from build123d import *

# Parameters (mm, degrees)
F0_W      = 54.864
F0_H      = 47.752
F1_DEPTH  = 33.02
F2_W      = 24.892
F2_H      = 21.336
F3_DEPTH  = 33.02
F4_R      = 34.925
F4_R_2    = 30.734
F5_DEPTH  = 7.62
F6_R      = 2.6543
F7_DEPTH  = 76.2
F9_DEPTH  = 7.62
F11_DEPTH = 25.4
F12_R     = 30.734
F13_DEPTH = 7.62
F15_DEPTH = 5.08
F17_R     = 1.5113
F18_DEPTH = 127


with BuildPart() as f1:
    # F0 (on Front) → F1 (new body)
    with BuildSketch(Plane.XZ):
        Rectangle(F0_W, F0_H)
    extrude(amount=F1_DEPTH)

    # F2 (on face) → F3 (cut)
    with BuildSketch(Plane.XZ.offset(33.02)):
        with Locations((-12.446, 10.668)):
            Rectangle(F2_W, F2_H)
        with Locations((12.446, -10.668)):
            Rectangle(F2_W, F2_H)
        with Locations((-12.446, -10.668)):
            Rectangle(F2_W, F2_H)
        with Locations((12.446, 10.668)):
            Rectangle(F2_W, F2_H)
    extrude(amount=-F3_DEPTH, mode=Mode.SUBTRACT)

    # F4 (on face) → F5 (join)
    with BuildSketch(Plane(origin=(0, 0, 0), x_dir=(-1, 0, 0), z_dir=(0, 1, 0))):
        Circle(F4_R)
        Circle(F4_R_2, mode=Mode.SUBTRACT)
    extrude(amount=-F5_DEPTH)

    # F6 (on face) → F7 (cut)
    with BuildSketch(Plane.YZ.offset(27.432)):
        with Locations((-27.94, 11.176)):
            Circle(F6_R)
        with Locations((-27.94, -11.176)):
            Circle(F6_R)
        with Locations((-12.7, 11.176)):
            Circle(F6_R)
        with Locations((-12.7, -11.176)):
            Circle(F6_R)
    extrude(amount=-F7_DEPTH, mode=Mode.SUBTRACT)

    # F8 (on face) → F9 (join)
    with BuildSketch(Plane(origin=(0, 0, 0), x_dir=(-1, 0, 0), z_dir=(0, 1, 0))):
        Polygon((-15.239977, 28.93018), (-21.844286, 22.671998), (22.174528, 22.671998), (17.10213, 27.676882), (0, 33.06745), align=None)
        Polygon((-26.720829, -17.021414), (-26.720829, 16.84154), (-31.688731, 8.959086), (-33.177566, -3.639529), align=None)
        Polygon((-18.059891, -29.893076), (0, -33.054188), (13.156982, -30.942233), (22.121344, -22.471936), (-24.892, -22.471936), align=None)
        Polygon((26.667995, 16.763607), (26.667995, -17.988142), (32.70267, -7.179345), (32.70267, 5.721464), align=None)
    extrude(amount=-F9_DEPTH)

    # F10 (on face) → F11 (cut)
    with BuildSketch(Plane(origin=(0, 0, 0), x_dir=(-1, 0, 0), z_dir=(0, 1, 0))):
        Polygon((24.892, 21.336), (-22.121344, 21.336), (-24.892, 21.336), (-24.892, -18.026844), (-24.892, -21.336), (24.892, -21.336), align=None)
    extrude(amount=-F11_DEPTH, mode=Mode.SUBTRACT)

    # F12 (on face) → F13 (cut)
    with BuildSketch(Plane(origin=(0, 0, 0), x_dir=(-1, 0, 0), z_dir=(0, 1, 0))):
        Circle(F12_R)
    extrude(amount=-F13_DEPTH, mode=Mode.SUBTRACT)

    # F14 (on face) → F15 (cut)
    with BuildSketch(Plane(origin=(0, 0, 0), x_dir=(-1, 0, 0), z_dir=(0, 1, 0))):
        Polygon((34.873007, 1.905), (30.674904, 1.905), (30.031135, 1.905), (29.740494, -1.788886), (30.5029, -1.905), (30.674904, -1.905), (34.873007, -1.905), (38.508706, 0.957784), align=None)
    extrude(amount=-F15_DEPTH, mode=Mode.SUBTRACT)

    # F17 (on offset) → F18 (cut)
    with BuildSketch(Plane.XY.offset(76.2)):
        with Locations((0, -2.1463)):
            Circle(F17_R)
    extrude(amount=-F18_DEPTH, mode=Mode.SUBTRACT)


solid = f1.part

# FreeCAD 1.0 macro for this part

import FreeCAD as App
import Part
import Sketcher
Q = App.Units.Quantity

doc = App.newDocument("Part")
body = doc.addObject("PartDesign::Body", "Body")

# Sketch on XZ plane
sketch1 = body.newObject("Sketcher::SketchObject", "Sketch")
sketch1.AttachmentSupport = (doc.getObject("XZ_Plane"), [""])
sketch1.MapMode = "FlatFace"
sketch1.addGeometry(Part.LineSegment(App.Vector(-27.432, 23.876, 0), App.Vector(-27.432, -23.876, 0)), False)
sketch1.addGeometry(Part.LineSegment(App.Vector(-27.432, -23.876, 0), App.Vector(27.432, -23.876, 0)), False)
sketch1.addGeometry(Part.LineSegment(App.Vector(27.432, -23.876, 0), App.Vector(27.432, 23.876, 0)), False)
sketch1.addGeometry(Part.LineSegment(App.Vector(27.432, 23.876, 0), App.Vector(-27.432, 23.876, 0)), False)
sketch1.addConstraint(Sketcher.Constraint("Coincident", 0, 2, 1, 1))
sketch1.addConstraint(Sketcher.Constraint("Coincident", 1, 2, 2, 1))
sketch1.addConstraint(Sketcher.Constraint("Coincident", 2, 2, 3, 1))
sketch1.addConstraint(Sketcher.Constraint("Coincident", 3, 2, 0, 1))
sketch1.addConstraint(Sketcher.Constraint("Vertical", 0))
sketch1.addConstraint(Sketcher.Constraint("Horizontal", 1))
sketch1.addConstraint(Sketcher.Constraint("Vertical", 2))
sketch1.addConstraint(Sketcher.Constraint("Horizontal", 3))
sketch1.addConstraint(Sketcher.Constraint("Symmetric", 0, 2, 2, 2, -1, 1))
sketch1.addConstraint(Sketcher.Constraint("DistanceX", 1, 1, 1, 2, Q("2.16 in")))
sketch1.addConstraint(Sketcher.Constraint("DistanceY", 0, 2, 0, 1, Q("1.88 in")))
pad1 = body.newObject("PartDesign::Pad", "Pad")
pad1.Profile = sketch1
pad1.Length = Q("1.3 in")

# Sketch on XZ plane
sketch2 = body.newObject("Sketcher::SketchObject", "Sketch001")
sketch2.AttachmentSupport = (doc.getObject("XZ_Plane"), [""])
sketch2.MapMode = "FlatFace"
sketch2.AttachmentOffset = App.Placement(App.Vector(0, 0, 1.3 * 25.4), App.Rotation())
sketch2.addGeometry(Part.LineSegment(App.Vector(-24.892, 21.336, 0), App.Vector(-24.892, -21.336, 0)), False)
sketch2.addGeometry(Part.LineSegment(App.Vector(-24.892, -21.336, 0), App.Vector(24.892, -21.336, 0)), False)
sketch2.addGeometry(Part.LineSegment(App.Vector(24.892, -21.336, 0), App.Vector(24.892, 21.336, 0)), False)
sketch2.addGeometry(Part.LineSegment(App.Vector(24.892, 21.336, 0), App.Vector(-24.892, 21.336, 0)), False)
sketch2.addConstraint(Sketcher.Constraint("Coincident", 0, 2, 1, 1))
sketch2.addConstraint(Sketcher.Constraint("Coincident", 1, 2, 2, 1))
sketch2.addConstraint(Sketcher.Constraint("Coincident", 2, 2, 3, 1))
sketch2.addConstraint(Sketcher.Constraint("Coincident", 3, 2, 0, 1))
sketch2.addConstraint(Sketcher.Constraint("Vertical", 0))
sketch2.addConstraint(Sketcher.Constraint("Horizontal", 1))
sketch2.addConstraint(Sketcher.Constraint("Vertical", 2))
sketch2.addConstraint(Sketcher.Constraint("Horizontal", 3))
sketch2.addConstraint(Sketcher.Constraint("Symmetric", 0, 2, 2, 2, -1, 1))
sketch2.addConstraint(Sketcher.Constraint("DistanceX", 1, 1, 1, 2, Q("1.96 in")))
sketch2.addConstraint(Sketcher.Constraint("DistanceY", 0, 2, 0, 1, Q("1.68 in")))
pocket1 = body.newObject("PartDesign::Pocket", "Pocket")
pocket1.Profile = sketch2
pocket1.Length = Q("1.3 in")

# Sketch on XZ plane
sketch3 = body.newObject("Sketcher::SketchObject", "Sketch002")
sketch3.AttachmentSupport = (doc.getObject("XZ_Plane"), [""])
sketch3.MapMode = "FlatFace"
sketch3.addGeometry(Part.Circle(App.Vector(0, 0, 0), App.Vector(0, 0, 1), 34.925), False)
sketch3.addGeometry(Part.Circle(App.Vector(0, 0, 0), App.Vector(0, 0, 1), 30.734), False)
sketch3.addConstraint(Sketcher.Constraint("Coincident", 0, 3, -1, 1))
sketch3.addConstraint(Sketcher.Constraint("Coincident", 1, 3, -1, 1))
sketch3.addConstraint(Sketcher.Constraint("Diameter", 0, Q("2.75 in")))
sketch3.addConstraint(Sketcher.Constraint("Diameter", 1, Q("2.42 in")))
pad2 = body.newObject("PartDesign::Pad", "Pad001")
pad2.Profile = sketch3
pad2.Length = Q("0.3 in")

# Sketch on YZ plane
sketch4 = body.newObject("Sketcher::SketchObject", "Sketch003")
sketch4.AttachmentSupport = (doc.getObject("YZ_Plane"), [""])
sketch4.MapMode = "FlatFace"
sketch4.AttachmentOffset = App.Placement(App.Vector(0, 0, 1.08 * 25.4), App.Rotation())
sketch4.addGeometry(Part.Circle(App.Vector(-27.94, 11.176, 0), App.Vector(0, 0, 1), 2.6543), False)
sketch4.addGeometry(Part.Circle(App.Vector(-27.94, -11.176, 0), App.Vector(0, 0, 1), 2.6543), False)
sketch4.addGeometry(Part.Circle(App.Vector(-12.7, 11.176, 0), App.Vector(0, 0, 1), 2.6543), False)
sketch4.addGeometry(Part.Circle(App.Vector(-12.7, -11.176, 0), App.Vector(0, 0, 1), 2.6543), False)
sketch4.addConstraint(Sketcher.Constraint("Equal", 0, 1))
sketch4.addConstraint(Sketcher.Constraint("Equal", 1, 2))
sketch4.addConstraint(Sketcher.Constraint("Equal", 2, 3))
sketch4.addConstraint(Sketcher.Constraint("Symmetric", 0, 3, 1, 3, -1))
sketch4.addConstraint(Sketcher.Constraint("Symmetric", 2, 3, 3, 3, -1))
sketch4.addConstraint(Sketcher.Constraint("Horizontal", 0, 3, 2, 3))
sketch4.addConstraint(Sketcher.Constraint("Diameter", 0, Q("0.209 in")))
sketch4.addConstraint(Sketcher.Constraint("DistanceX", 0, 3, -1, 1, Q("1.1 in")))
sketch4.addConstraint(Sketcher.Constraint("DistanceX", 2, 3, -1, 1, Q("0.5 in")))
sketch4.addConstraint(Sketcher.Constraint("DistanceY", -1, 1, 0, 3, Q("0.44 in")))
pocket2 = body.newObject("PartDesign::Pocket", "Pocket001")
pocket2.Profile = sketch4
pocket2.Length = Q("3 in")

# Sketch on XZ plane
sketch5 = body.newObject("Sketcher::SketchObject", "Sketch004")
sketch5.AttachmentSupport = (doc.getObject("XZ_Plane"), [""])
sketch5.MapMode = "FlatFace"
sketch5.addGeometry(Part.LineSegment(App.Vector(15.239977, 28.93018, 0), App.Vector(21.844286, 22.671998, 0)), False)
sketch5.addGeometry(Part.LineSegment(App.Vector(21.844286, 22.671998, 0), App.Vector(-22.174528, 22.671998, 0)), False)
sketch5.addGeometry(Part.LineSegment(App.Vector(-22.174528, 22.671998, 0), App.Vector(-17.10213, 27.676882, 0)), False)
sketch5.addGeometry(Part.LineSegment(App.Vector(-17.10213, 27.676882, 0), App.Vector(0, 33.06745, 0)), False)
sketch5.addGeometry(Part.LineSegment(App.Vector(0, 33.06745, 0), App.Vector(15.239977, 28.93018, 0)), False)
sketch5.addGeometry(Part.LineSegment(App.Vector(26.720829, -17.021414, 0), App.Vector(26.720829, 16.84154, 0)), False)
sketch5.addGeometry(Part.LineSegment(App.Vector(26.720829, 16.84154, 0), App.Vector(31.688731, 8.959086, 0)), False)
sketch5.addGeometry(Part.LineSegment(App.Vector(31.688731, 8.959086, 0), App.Vector(33.177566, -3.639529, 0)), False)
sketch5.addGeometry(Part.LineSegment(App.Vector(33.177566, -3.639529, 0), App.Vector(26.720829, -17.021414, 0)), False)
sketch5.addGeometry(Part.LineSegment(App.Vector(18.059891, -29.893076, 0), App.Vector(0, -33.054188, 0)), False)
sketch5.addGeometry(Part.LineSegment(App.Vector(0, -33.054188, 0), App.Vector(-13.156982, -30.942233, 0)), False)
sketch5.addGeometry(Part.LineSegment(App.Vector(-13.156982, -30.942233, 0), App.Vector(-22.121344, -22.471936, 0)), False)
sketch5.addGeometry(Part.LineSegment(App.Vector(-22.121344, -22.471936, 0), App.Vector(24.892, -22.471936, 0)), False)
sketch5.addGeometry(Part.LineSegment(App.Vector(24.892, -22.471936, 0), App.Vector(18.059891, -29.893076, 0)), False)
sketch5.addGeometry(Part.LineSegment(App.Vector(-26.667995, 16.763607, 0), App.Vector(-26.667995, -17.988142, 0)), False)
sketch5.addGeometry(Part.LineSegment(App.Vector(-26.667995, -17.988142, 0), App.Vector(-32.70267, -7.179345, 0)), False)
sketch5.addGeometry(Part.LineSegment(App.Vector(-32.70267, -7.179345, 0), App.Vector(-32.70267, 5.721464, 0)), False)
sketch5.addGeometry(Part.LineSegment(App.Vector(-32.70267, 5.721464, 0), App.Vector(-26.667995, 16.763607, 0)), False)
sketch5.addConstraint(Sketcher.Constraint("Coincident", 0, 2, 1, 1))
sketch5.addConstraint(Sketcher.Constraint("Coincident", 1, 2, 2, 1))
sketch5.addConstraint(Sketcher.Constraint("Coincident", 2, 2, 3, 1))
sketch5.addConstraint(Sketcher.Constraint("Coincident", 3, 2, 4, 1))
sketch5.addConstraint(Sketcher.Constraint("Coincident", 4, 2, 0, 1))
sketch5.addConstraint(Sketcher.Constraint("Coincident", 5, 2, 6, 1))
sketch5.addConstraint(Sketcher.Constraint("Coincident", 6, 2, 7, 1))
sketch5.addConstraint(Sketcher.Constraint("Coincident", 7, 2, 8, 1))
sketch5.addConstraint(Sketcher.Constraint("Coincident", 8, 2, 5, 1))
sketch5.addConstraint(Sketcher.Constraint("Coincident", 9, 2, 10, 1))
sketch5.addConstraint(Sketcher.Constraint("Coincident", 10, 2, 11, 1))
sketch5.addConstraint(Sketcher.Constraint("Coincident", 11, 2, 12, 1))
sketch5.addConstraint(Sketcher.Constraint("Coincident", 12, 2, 13, 1))
sketch5.addConstraint(Sketcher.Constraint("Coincident", 13, 2, 9, 1))
sketch5.addConstraint(Sketcher.Constraint("Coincident", 14, 2, 15, 1))
sketch5.addConstraint(Sketcher.Constraint("Coincident", 15, 2, 16, 1))
sketch5.addConstraint(Sketcher.Constraint("Coincident", 16, 2, 17, 1))
sketch5.addConstraint(Sketcher.Constraint("Coincident", 17, 2, 14, 1))
sketch5.addConstraint(Sketcher.Constraint("Horizontal", 1))
sketch5.addConstraint(Sketcher.Constraint("Vertical", 5))
sketch5.addConstraint(Sketcher.Constraint("Horizontal", 12))
sketch5.addConstraint(Sketcher.Constraint("Vertical", 14))
sketch5.addConstraint(Sketcher.Constraint("Vertical", 16))
sketch5.addConstraint(Sketcher.Constraint("PointOnObject", 3, 2, -2))
sketch5.addConstraint(Sketcher.Constraint("PointOnObject", 9, 2, -2))
sketch5.addConstraint(Sketcher.Constraint("DistanceX", -1, 1, 12, 2, Q("0.98 in")))
sketch5.addConstraint(Sketcher.Constraint("DistanceX", 2, 2, 6, 2, Q("1.9209 in")))
sketch5.addConstraint(Sketcher.Constraint("DistanceY", 14, 2, 14, 1, 34.751749))
sketch5.addConstraint(Sketcher.Constraint("DistanceY", 16, 1, 16, 2, 12.900809))
sketch5.addConstraint(Sketcher.Constraint("DistanceY", 2, 2, 4, 2, 1.253298))
sketch5.addConstraint(Sketcher.Constraint("DistanceY", 8, 2, 6, 2, 25.9805))
sketch5.addConstraint(Sketcher.Constraint("DistanceY", 11, 2, 16, 2, 28.1934))
sketch5.addConstraint(Sketcher.Constraint("Distance", 7, 12.686281))
sketch5.addConstraint(Sketcher.Constraint("Distance", 8, 14.858139))
sketch5.addConstraint(Sketcher.Constraint("Distance", 10, 13.325409))
sketch5.addConstraint(Sketcher.Constraint("Distance", 13, 10.087172))
sketch5.addConstraint(Sketcher.Constraint("Distance", 17, 12.58357))
sketch5.addConstraint(Sketcher.Constraint("DistanceX", 1, 2, 1, 1, 44.018814))
sketch5.addConstraint(Sketcher.Constraint("DistanceX", 12, 1, 12, 2, 47.013344))
sketch5.addConstraint(Sketcher.Constraint("DistanceY", 5, 1, 5, 2, 33.862954))
sketch5.addConstraint(Sketcher.Constraint("DistanceX", 2, 2, -1, 1, 17.10213))
sketch5.addConstraint(Sketcher.Constraint("DistanceY", -1, 1, 2, 2, 27.676882))
sketch5.addConstraint(Sketcher.Constraint("DistanceY", -1, 1, 3, 2, 33.06745))
sketch5.addConstraint(Sketcher.Constraint("DistanceX", -1, 1, 5, 2, 26.720829))
sketch5.addConstraint(Sketcher.Constraint("DistanceY", -1, 1, 5, 2, 16.84154))
sketch5.addConstraint(Sketcher.Constraint("DistanceY", 9, 2, -1, 1, 33.054188))
sketch5.addConstraint(Sketcher.Constraint("DistanceX", 10, 2, -1, 1, 13.156982))
sketch5.addConstraint(Sketcher.Constraint("DistanceX", -1, 1, 13, 2, 18.059891))
sketch5.addConstraint(Sketcher.Constraint("DistanceY", 14, 2, -1, 1, 17.988142))
sketch5.addConstraint(Sketcher.Constraint("DistanceX", 15, 2, -1, 1, 32.70267))
sketch5.addConstraint(Sketcher.Constraint("DistanceX", 4, 2, 0, 2, 6.604309))
sketch5.addConstraint(Sketcher.Constraint("DistanceX", 4, 2, 5, 2, 11.480852))
sketch5.addConstraint(Sketcher.Constraint("DistanceY", 6, 2, 0, 2, 13.712912))
sketch5.addConstraint(Sketcher.Constraint("DistanceY", 11, 2, 8, 2, 5.450522))
pad3 = body.newObject("PartDesign::Pad", "Pad002")
pad3.Profile = sketch5
pad3.Length = Q("0.3 in")

# Sketch on XZ plane
sketch6 = body.newObject("Sketcher::SketchObject", "Sketch005")
sketch6.AttachmentSupport = (doc.getObject("XZ_Plane"), [""])
sketch6.MapMode = "FlatFace"
sketch6.addGeometry(Part.LineSegment(App.Vector(-24.892, 21.336, 0), App.Vector(24.892, 21.336, 0)), False)
sketch6.addGeometry(Part.LineSegment(App.Vector(24.892, 21.336, 0), App.Vector(24.892, -21.336, 0)), False)
sketch6.addGeometry(Part.LineSegment(App.Vector(24.892, -21.336, 0), App.Vector(-24.892, -21.336, 0)), False)
sketch6.addGeometry(Part.LineSegment(App.Vector(-24.892, -21.336, 0), App.Vector(-24.892, 21.336, 0)), False)
sketch6.addConstraint(Sketcher.Constraint("Coincident", 0, 2, 1, 1))
sketch6.addConstraint(Sketcher.Constraint("Coincident", 1, 2, 2, 1))
sketch6.addConstraint(Sketcher.Constraint("Coincident", 2, 2, 3, 1))
sketch6.addConstraint(Sketcher.Constraint("Coincident", 3, 2, 0, 1))
sketch6.addConstraint(Sketcher.Constraint("Horizontal", 0))
sketch6.addConstraint(Sketcher.Constraint("Vertical", 1))
sketch6.addConstraint(Sketcher.Constraint("Horizontal", 2))
sketch6.addConstraint(Sketcher.Constraint("Vertical", 3))
sketch6.addConstraint(Sketcher.Constraint("Symmetric", 0, 2, 2, 2, -1, 1))
sketch6.addConstraint(Sketcher.Constraint("DistanceX", 0, 1, 0, 2, Q("1.96 in")))
sketch6.addConstraint(Sketcher.Constraint("DistanceY", 1, 2, 1, 1, Q("1.68 in")))
pocket3 = body.newObject("PartDesign::Pocket", "Pocket002")
pocket3.Profile = sketch6
pocket3.Length = Q("1 in")
pocket3.Reversed = True

# Sketch on XZ plane
sketch7 = body.newObject("Sketcher::SketchObject", "Sketch006")
sketch7.AttachmentSupport = (doc.getObject("XZ_Plane"), [""])
sketch7.MapMode = "FlatFace"
sketch7.addGeometry(Part.Circle(App.Vector(0, 0, 0), App.Vector(0, 0, 1), 30.734), False)
sketch7.addConstraint(Sketcher.Constraint("Coincident", 0, 3, -1, 1))
sketch7.addConstraint(Sketcher.Constraint("Diameter", 0, Q("2.42 in")))
pocket4 = body.newObject("PartDesign::Pocket", "Pocket003")
pocket4.Profile = sketch7
pocket4.Length = Q("0.3 in")
pocket4.Reversed = True

# Sketch on XZ plane
sketch8 = body.newObject("Sketcher::SketchObject", "Sketch007")
sketch8.AttachmentSupport = (doc.getObject("XZ_Plane"), [""])
sketch8.MapMode = "FlatFace"
sketch8.addGeometry(Part.LineSegment(App.Vector(-34.873007, 1.905, 0), App.Vector(-30.031135, 1.905, 0)), False)
sketch8.addGeometry(Part.LineSegment(App.Vector(-30.031135, 1.905, 0), App.Vector(-29.740494, -1.788886, 0)), False)
sketch8.addGeometry(Part.LineSegment(App.Vector(-29.740494, -1.788886, 0), App.Vector(-30.5029, -1.905, 0)), False)
sketch8.addGeometry(Part.LineSegment(App.Vector(-30.5029, -1.905, 0), App.Vector(-34.873007, -1.905, 0)), False)
sketch8.addGeometry(Part.LineSegment(App.Vector(-34.873007, -1.905, 0), App.Vector(-38.508706, 0.957784, 0)), False)
sketch8.addGeometry(Part.LineSegment(App.Vector(-38.508706, 0.957784, 0), App.Vector(-34.873007, 1.905, 0)), False)
sketch8.addConstraint(Sketcher.Constraint("Coincident", 0, 2, 1, 1))
sketch8.addConstraint(Sketcher.Constraint("Coincident", 1, 2, 2, 1))
sketch8.addConstraint(Sketcher.Constraint("Coincident", 2, 2, 3, 1))
sketch8.addConstraint(Sketcher.Constraint("Coincident", 3, 2, 4, 1))
sketch8.addConstraint(Sketcher.Constraint("Coincident", 4, 2, 5, 1))
sketch8.addConstraint(Sketcher.Constraint("Coincident", 5, 2, 0, 1))
sketch8.addConstraint(Sketcher.Constraint("Horizontal", 0))
sketch8.addConstraint(Sketcher.Constraint("Horizontal", 3))
sketch8.addConstraint(Sketcher.Constraint("Symmetric", 3, 2, 5, 2, -1))
sketch8.addConstraint(Sketcher.Constraint("DistanceY", 2, 2, 0, 2, Q("0.15 in")))
sketch8.addConstraint(Sketcher.Constraint("DistanceX", 2, 2, -1, 1, 30.5029))
sketch8.addConstraint(Sketcher.Constraint("DistanceX", 4, 2, 3, 2, 3.635699))
sketch8.addConstraint(Sketcher.Constraint("Distance", 4, 4.627509))
sketch8.addConstraint(Sketcher.Constraint("DistanceX", 0, 1, 0, 2, 4.841872))
sketch8.addConstraint(Sketcher.Constraint("DistanceX", 3, 2, 3, 1, 4.370107))
sketch8.addConstraint(Sketcher.Constraint("DistanceX", 0, 2, 1, 2, 0.290641))
sketch8.addConstraint(Sketcher.Constraint("DistanceY", 1, 2, 4, 2, 2.74667))
pocket5 = body.newObject("PartDesign::Pocket", "Pocket004")
pocket5.Profile = sketch8
pocket5.Length = Q("0.2 in")
pocket5.Reversed = True

# Sketch on XY plane
sketch9 = body.newObject("Sketcher::SketchObject", "Sketch008")
sketch9.AttachmentSupport = (doc.getObject("XY_Plane"), [""])
sketch9.MapMode = "FlatFace"
sketch9.AttachmentOffset = App.Placement(App.Vector(0, 0, 3 * 25.4), App.Rotation())
sketch9.addGeometry(Part.Circle(App.Vector(0, -2.1463, 0), App.Vector(0, 0, 1), 1.5113), False)
sketch9.addConstraint(Sketcher.Constraint("PointOnObject", 0, 3, -2))
sketch9.addConstraint(Sketcher.Constraint("Diameter", 0, Q("0.119 in")))
sketch9.addConstraint(Sketcher.Constraint("DistanceY", 0, 3, -1, 1, Q("0.0845 in")))
pocket6 = body.newObject("PartDesign::Pocket", "Pocket005")
pocket6.Profile = sketch9
pocket6.Length = Q("5 in")

doc.recompute()
